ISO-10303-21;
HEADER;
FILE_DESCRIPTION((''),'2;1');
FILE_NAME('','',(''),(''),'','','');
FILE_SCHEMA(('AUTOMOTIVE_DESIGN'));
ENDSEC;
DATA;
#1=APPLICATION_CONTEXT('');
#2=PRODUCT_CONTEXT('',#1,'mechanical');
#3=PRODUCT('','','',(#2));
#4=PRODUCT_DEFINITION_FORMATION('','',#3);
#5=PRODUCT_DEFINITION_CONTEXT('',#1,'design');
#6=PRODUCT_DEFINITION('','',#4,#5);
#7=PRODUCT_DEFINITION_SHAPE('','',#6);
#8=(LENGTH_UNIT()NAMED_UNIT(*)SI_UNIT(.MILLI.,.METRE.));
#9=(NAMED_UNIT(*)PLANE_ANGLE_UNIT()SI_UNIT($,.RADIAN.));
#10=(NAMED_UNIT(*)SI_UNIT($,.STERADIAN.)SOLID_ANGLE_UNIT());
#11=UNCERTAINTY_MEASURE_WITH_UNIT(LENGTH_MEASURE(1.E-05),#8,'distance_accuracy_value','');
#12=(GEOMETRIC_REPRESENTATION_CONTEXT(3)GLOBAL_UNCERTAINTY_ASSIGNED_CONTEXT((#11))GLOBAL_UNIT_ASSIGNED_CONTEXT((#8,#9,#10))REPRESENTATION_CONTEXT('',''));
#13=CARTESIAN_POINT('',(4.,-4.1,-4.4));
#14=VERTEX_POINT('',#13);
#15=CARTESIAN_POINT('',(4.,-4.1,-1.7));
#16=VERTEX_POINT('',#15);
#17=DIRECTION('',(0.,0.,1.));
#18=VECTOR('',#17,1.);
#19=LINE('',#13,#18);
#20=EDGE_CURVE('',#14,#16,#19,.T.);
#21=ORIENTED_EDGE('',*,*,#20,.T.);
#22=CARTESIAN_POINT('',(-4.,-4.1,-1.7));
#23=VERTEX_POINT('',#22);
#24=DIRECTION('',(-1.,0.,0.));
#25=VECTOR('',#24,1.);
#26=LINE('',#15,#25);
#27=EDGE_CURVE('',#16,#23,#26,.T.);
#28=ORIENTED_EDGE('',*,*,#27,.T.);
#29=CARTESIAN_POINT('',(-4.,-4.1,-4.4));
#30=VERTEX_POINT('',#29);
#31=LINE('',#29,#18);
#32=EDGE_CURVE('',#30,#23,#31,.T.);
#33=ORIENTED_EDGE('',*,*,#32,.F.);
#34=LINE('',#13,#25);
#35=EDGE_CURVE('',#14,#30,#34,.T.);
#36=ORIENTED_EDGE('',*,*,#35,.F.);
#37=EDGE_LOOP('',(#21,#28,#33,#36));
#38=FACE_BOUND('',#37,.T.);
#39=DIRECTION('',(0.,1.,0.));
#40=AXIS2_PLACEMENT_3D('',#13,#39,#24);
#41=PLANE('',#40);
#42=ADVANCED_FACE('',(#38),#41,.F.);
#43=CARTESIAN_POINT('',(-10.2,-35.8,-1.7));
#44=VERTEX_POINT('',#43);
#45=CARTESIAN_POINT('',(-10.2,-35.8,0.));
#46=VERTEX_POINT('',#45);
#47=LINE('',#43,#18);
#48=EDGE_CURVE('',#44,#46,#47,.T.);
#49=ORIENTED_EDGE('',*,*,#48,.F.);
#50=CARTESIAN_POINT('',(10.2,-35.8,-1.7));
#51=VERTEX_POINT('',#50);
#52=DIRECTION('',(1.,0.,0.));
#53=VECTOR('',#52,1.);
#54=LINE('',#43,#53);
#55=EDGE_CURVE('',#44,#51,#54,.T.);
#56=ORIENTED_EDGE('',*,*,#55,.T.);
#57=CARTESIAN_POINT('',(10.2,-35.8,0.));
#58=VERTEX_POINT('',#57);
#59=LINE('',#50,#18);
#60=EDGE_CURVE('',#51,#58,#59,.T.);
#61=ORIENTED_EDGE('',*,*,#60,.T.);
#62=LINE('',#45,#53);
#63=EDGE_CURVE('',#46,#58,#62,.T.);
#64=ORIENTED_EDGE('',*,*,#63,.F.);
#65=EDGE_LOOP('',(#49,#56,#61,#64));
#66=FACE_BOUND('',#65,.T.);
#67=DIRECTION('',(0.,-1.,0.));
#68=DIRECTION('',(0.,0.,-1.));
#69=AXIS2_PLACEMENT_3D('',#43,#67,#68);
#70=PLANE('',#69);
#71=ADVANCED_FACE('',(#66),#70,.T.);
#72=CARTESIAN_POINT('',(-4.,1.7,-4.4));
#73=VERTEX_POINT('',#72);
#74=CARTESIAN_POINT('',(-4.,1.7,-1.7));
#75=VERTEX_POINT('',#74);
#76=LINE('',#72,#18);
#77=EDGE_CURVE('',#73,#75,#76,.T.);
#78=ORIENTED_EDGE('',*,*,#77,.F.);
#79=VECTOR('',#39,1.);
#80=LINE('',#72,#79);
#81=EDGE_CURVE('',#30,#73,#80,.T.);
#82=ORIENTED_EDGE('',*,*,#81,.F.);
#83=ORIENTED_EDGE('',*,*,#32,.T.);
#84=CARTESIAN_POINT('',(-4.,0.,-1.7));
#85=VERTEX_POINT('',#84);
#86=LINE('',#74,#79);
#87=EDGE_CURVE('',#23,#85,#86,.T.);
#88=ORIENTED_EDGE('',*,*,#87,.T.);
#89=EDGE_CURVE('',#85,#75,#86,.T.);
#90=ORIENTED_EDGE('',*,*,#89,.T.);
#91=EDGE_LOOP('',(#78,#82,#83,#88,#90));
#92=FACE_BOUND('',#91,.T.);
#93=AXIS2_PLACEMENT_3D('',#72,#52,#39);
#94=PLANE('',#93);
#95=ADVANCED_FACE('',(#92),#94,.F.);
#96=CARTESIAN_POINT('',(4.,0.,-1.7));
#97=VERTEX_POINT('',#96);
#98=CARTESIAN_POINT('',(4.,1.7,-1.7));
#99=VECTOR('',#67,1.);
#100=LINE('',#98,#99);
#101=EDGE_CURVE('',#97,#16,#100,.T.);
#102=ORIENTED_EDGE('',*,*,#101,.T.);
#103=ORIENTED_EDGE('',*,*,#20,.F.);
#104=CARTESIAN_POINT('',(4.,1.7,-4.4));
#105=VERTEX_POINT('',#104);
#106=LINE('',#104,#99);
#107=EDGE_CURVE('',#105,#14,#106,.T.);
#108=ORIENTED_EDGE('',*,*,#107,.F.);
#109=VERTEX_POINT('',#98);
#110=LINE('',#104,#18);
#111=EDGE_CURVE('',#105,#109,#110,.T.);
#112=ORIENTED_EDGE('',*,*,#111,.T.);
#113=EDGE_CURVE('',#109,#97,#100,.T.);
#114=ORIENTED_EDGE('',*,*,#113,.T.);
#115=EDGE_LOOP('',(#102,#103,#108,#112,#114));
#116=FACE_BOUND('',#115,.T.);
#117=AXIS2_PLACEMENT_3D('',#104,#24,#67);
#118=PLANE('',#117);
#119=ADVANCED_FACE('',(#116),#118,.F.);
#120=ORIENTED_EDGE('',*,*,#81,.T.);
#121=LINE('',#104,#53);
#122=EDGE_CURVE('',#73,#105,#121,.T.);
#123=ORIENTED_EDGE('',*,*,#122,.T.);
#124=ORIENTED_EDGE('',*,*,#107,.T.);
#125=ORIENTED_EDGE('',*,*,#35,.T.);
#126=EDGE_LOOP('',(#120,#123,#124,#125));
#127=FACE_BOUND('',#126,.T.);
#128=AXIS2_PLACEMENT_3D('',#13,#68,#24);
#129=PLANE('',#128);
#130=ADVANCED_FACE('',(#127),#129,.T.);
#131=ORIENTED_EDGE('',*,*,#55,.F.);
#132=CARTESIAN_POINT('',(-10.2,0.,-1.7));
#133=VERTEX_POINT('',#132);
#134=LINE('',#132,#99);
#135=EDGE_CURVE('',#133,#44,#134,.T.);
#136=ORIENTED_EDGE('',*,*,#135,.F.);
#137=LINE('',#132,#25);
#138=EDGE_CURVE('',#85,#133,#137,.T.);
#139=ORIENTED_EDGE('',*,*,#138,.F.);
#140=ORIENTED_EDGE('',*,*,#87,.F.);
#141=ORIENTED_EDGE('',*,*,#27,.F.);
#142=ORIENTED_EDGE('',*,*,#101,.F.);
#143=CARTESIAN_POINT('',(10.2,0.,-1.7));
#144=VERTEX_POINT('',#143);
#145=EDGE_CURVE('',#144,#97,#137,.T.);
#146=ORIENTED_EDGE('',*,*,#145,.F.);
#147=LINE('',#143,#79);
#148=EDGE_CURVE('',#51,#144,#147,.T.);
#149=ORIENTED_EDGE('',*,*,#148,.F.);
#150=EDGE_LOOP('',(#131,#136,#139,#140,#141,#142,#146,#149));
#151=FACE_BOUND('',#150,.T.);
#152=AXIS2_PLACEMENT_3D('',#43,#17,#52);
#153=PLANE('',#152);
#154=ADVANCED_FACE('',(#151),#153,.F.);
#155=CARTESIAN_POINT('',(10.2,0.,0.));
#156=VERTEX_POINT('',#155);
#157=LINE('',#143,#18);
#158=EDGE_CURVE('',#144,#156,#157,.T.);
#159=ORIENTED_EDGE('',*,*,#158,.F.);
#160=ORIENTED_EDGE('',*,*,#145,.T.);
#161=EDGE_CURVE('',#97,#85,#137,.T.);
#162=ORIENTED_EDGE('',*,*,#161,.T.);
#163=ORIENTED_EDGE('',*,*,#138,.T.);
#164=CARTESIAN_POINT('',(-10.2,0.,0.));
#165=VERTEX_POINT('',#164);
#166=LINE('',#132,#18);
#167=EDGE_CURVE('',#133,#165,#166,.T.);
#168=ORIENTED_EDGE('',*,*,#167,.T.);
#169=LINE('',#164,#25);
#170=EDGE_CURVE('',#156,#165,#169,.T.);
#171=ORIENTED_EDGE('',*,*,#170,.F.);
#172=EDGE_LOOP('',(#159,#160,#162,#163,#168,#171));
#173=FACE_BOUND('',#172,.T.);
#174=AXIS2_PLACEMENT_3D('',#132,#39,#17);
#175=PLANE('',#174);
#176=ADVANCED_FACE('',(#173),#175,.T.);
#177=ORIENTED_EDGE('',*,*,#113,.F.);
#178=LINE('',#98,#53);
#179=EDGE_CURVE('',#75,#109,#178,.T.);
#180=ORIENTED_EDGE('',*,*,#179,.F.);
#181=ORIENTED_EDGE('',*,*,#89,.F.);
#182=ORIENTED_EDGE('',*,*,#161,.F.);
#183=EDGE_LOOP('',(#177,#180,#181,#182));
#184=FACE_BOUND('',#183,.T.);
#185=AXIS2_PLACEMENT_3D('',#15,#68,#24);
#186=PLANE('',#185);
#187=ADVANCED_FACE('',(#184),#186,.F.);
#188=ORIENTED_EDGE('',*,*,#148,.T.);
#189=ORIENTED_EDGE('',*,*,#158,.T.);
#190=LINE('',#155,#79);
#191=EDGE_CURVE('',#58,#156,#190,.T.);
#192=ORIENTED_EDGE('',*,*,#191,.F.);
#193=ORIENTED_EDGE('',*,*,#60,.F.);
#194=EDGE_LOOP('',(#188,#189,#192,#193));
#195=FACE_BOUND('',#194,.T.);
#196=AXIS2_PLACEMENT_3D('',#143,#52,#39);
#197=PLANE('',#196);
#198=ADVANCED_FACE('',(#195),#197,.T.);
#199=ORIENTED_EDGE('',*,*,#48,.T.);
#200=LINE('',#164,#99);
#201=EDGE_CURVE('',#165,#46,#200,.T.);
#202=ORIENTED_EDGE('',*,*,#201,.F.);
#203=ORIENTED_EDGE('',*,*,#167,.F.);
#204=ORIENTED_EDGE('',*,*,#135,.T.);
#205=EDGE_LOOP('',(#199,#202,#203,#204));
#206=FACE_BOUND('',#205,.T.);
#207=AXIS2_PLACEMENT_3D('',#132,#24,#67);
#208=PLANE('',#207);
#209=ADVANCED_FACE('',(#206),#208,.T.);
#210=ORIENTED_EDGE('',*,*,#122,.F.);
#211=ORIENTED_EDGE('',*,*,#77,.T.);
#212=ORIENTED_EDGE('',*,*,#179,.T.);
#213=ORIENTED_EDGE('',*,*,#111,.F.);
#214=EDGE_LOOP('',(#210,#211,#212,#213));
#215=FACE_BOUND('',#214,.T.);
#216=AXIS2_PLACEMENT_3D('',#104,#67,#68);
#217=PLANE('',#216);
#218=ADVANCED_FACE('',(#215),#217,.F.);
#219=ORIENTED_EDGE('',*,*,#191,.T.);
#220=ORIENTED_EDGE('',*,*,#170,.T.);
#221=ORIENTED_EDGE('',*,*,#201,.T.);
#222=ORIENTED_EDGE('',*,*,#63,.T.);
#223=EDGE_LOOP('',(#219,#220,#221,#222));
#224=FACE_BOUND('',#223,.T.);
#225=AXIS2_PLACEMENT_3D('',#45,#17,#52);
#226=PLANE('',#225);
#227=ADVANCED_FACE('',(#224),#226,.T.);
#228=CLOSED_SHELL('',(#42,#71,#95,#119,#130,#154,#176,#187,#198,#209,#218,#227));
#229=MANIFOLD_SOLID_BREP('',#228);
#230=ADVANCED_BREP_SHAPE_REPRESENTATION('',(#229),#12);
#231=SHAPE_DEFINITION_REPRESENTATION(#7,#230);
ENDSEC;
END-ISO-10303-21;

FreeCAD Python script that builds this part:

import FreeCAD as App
import Part
import Sketcher
from FreeCAD import Vector
Q = App.Units.Quantity

doc = App.newDocument("Part")
params = doc.addObject("Spreadsheet::Sheet", "Params")
for row, (alias, value) in enumerate([
    ("sketch1_width", "20.4 mm"),
    ("sketch1_height", "35.8 mm"),
    ("pad1_length", "1.7 mm"),
    ("sketch2_width", "8 mm"),
    ("sketch2_height", "5.8 mm"),
    ("pad2_length", "2.7 mm"),
], start=1):
    params.set(f"A{row}", alias)
    params.set(f"B{row}", "=" + value)
    params.setAlias(f"B{row}", alias)

body = doc.addObject("PartDesign::Body", "Body")

# Sketch on XY plane
sketch1 = body.newObject("Sketcher::SketchObject", "Sketch")
sketch1.AttachmentSupport = (doc.getObject("XY_Plane"), [""])
sketch1.MapMode = "FlatFace"
sketch1.addGeometry(Part.LineSegment(Vector(-10, 0, 0), Vector(-10, -36, 0)), False)
sketch1.addGeometry(Part.LineSegment(Vector(-10, -36, 0), Vector(10, -36, 0)), False)
sketch1.addGeometry(Part.LineSegment(Vector(10, -36, 0), Vector(10, 0, 0)), False)
sketch1.addGeometry(Part.LineSegment(Vector(10, 0, 0), Vector(-10, 0, 0)), False)
sketch1.addConstraint(Sketcher.Constraint("Coincident", 0, 2, 1, 1))
sketch1.addConstraint(Sketcher.Constraint("Coincident", 1, 2, 2, 1))
sketch1.addConstraint(Sketcher.Constraint("Coincident", 2, 2, 3, 1))
sketch1.addConstraint(Sketcher.Constraint("Coincident", 3, 2, 0, 1))
sketch1.addConstraint(Sketcher.Constraint("Vertical", 0))
sketch1.addConstraint(Sketcher.Constraint("Horizontal", 1))
sketch1.addConstraint(Sketcher.Constraint("Vertical", 2))
sketch1.addConstraint(Sketcher.Constraint("Horizontal", 3))
sketch1.addConstraint(Sketcher.Constraint("Symmetric", 2, 2, 3, 2, -1, 1))
sketch1.addConstraint(Sketcher.Constraint("DistanceX", 1, 1, 1, 2, Q("20.4 mm")))
sketch1.addConstraint(Sketcher.Constraint("DistanceY", 0, 2, 0, 1, Q("35.8 mm")))
sketch1.setExpression("Constraints[9]", "Params.sketch1_width")
sketch1.setExpression("Constraints[10]", "Params.sketch1_height")
pad1 = body.newObject("PartDesign::Pad", "Pad")
pad1.Profile = sketch1
pad1.setExpression("Length", "Params.pad1_length")
pad1.Reversed = True

# Sketch on XY plane
sketch2 = body.newObject("Sketcher::SketchObject", "Sketch001")
sketch2.AttachmentSupport = (doc.getObject("XY_Plane"), [""])
sketch2.MapMode = "FlatFace"
sketch2.AttachmentOffset = App.Placement(Vector(0, 0, -1.7), App.Rotation())
sketch2.addGeometry(Part.LineSegment(Vector(4, 2, 0), Vector(4, -4, 0)), False)
sketch2.addGeometry(Part.LineSegment(Vector(4, -4, 0), Vector(-4, -4, 0)), False)
sketch2.addGeometry(Part.LineSegment(Vector(-4, -4, 0), Vector(-4, 2, 0)), False)
sketch2.addGeometry(Part.LineSegment(Vector(-4, 2, 0), Vector(4, 2, 0)), False)
sketch2.addConstraint(Sketcher.Constraint("Coincident", 0, 2, 1, 1))
sketch2.addConstraint(Sketcher.Constraint("Coincident", 1, 2, 2, 1))
sketch2.addConstraint(Sketcher.Constraint("Coincident", 2, 2, 3, 1))
sketch2.addConstraint(Sketcher.Constraint("Coincident", 3, 2, 0, 1))
sketch2.addConstraint(Sketcher.Constraint("Vertical", 0))
sketch2.addConstraint(Sketcher.Constraint("Horizontal", 1))
sketch2.addConstraint(Sketcher.Constraint("Vertical", 2))
sketch2.addConstraint(Sketcher.Constraint("Horizontal", 3))
sketch2.addConstraint(Sketcher.Constraint("DistanceX", 1, 2, 1, 1, Q("8 mm")))
sketch2.addConstraint(Sketcher.Constraint("DistanceY", 0, 2, 0, 1, Q("5.8 mm")))
sketch2.addConstraint(Sketcher.Constraint("DistanceX", -1, 1, 0, 2, Q("4 mm")))
sketch2.addConstraint(Sketcher.Constraint("DistanceY", 0, 2, -1, 1, Q("4.1 mm")))
sketch2.setExpression("Constraints[8]", "Params.sketch2_width")
sketch2.setExpression("Constraints[9]", "Params.sketch2_height")
pad2 = body.newObject("PartDesign::Pad", "Pad001")
pad2.Profile = sketch2
pad2.setExpression("Length", "Params.pad2_length")
pad2.Reversed = True

doc.recompute()
